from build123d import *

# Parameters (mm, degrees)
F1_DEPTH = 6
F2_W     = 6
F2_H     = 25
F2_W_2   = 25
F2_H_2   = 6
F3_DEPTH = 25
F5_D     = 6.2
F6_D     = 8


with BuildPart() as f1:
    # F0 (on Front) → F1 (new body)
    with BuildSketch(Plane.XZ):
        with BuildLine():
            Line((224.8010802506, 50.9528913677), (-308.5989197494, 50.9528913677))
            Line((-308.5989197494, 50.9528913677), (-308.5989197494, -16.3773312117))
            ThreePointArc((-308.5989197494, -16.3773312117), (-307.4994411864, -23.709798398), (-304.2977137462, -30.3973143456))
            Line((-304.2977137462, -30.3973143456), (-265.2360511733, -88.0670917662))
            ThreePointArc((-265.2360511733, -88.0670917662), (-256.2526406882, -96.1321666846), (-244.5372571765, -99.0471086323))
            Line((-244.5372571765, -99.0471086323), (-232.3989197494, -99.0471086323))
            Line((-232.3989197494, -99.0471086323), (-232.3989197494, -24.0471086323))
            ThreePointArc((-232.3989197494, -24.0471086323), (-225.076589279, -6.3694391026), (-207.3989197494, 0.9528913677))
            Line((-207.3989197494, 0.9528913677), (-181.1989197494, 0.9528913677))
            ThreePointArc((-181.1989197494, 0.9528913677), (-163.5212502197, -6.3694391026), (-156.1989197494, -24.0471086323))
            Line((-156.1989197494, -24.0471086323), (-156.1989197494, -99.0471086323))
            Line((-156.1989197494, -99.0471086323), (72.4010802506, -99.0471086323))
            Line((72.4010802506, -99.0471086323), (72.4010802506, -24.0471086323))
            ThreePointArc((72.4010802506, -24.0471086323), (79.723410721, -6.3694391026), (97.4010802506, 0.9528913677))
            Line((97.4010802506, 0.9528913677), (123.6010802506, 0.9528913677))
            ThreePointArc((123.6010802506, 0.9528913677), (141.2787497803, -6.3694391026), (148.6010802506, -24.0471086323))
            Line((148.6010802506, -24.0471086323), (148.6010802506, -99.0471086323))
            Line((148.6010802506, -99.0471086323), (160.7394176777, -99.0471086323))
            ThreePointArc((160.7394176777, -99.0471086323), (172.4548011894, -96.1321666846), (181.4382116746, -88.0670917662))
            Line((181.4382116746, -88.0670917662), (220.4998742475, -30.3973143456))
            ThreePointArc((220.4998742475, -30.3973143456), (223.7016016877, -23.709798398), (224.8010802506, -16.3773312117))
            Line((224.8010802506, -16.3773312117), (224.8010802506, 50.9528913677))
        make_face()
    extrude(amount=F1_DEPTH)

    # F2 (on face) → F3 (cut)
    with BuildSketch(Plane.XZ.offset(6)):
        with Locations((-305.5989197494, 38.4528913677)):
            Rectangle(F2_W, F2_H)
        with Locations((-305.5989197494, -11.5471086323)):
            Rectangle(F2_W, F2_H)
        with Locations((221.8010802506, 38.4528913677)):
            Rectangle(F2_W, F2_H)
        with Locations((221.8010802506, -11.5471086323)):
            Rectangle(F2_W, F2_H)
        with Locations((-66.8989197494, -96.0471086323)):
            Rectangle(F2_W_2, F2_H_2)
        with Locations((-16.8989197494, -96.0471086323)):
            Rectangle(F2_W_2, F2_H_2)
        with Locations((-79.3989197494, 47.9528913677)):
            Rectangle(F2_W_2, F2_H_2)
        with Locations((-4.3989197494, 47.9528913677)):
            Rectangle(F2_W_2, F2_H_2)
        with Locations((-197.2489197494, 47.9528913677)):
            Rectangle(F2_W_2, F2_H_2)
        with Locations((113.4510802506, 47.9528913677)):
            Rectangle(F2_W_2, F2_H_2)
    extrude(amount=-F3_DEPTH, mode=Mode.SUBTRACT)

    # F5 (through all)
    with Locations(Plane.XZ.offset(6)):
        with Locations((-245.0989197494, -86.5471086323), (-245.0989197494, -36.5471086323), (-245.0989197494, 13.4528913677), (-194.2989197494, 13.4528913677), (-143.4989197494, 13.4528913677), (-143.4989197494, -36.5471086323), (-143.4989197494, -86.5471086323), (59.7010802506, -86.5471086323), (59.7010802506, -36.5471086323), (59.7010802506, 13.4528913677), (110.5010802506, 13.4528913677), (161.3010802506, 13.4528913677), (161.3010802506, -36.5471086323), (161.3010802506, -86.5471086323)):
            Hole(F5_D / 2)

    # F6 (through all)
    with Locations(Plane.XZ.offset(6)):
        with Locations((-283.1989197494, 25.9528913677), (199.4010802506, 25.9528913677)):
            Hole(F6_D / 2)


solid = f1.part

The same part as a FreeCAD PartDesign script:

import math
import FreeCAD as App
import Part
import Sketcher

V = App.Vector


def add_polygon(sketch, points):
    """Adds a closed chain of lines whose ends are joined by coincident constraints."""
    first, n = sketch.GeometryCount, len(points)
    for a, b in zip(points, points[1:] + points[:1]):
        sketch.addGeometry(Part.LineSegment(App.Vector(*a, 0), App.Vector(*b, 0)), False)
    for i in range(n):
        sketch.addConstraint(Sketcher.Constraint("Coincident", first + i, 2, first + (i + 1) % n, 1))

doc = App.newDocument("Part")
body = doc.addObject("PartDesign::Body", "Body")

sketch1 = body.newObject("Sketcher::SketchObject", "Sketch")
sketch1.AttachmentSupport = (doc.getObject("XZ_Plane"), [""])
sketch1.MapMode = "FlatFace"
sketch1.addGeometry(Part.LineSegment(V(224.80108, 50.952891, 0), V(-308.59892, 50.952891, 0)), False)
sketch1.addGeometry(Part.LineSegment(V(-308.59892, 50.952891, 0), V(-308.59892, -16.377331, 0)), False)
sketch1.addGeometry(Part.ArcOfCircle(Part.Circle(V(-283.59892, -16.377331, 0), V(0, 0, 1), 25), math.radians(180), math.radians(214.111094)), False)
sketch1.addGeometry(Part.LineSegment(V(-304.297714, -30.397314, 0), V(-265.236051, -88.067092, 0)), False)
sketch1.addGeometry(Part.ArcOfCircle(Part.Circle(V(-244.537257, -74.047109, 0), V(0, 0, 1), 25), math.radians(-145.888906), math.radians(-90)), False)
sketch1.addGeometry(Part.LineSegment(V(-244.537257, -99.047109, 0), V(-232.39892, -99.047109, 0)), False)
sketch1.addGeometry(Part.LineSegment(V(-232.39892, -99.047109, 0), V(-232.39892, -24.047109, 0)), False)
sketch1.addGeometry(Part.ArcOfCircle(Part.Circle(V(-207.39892, -24.047109, 0), V(0, 0, 1), 25), math.radians(90), math.radians(180)), False)
sketch1.addGeometry(Part.LineSegment(V(-207.39892, 0.952891, 0), V(-181.19892, 0.952891, 0)), False)
sketch1.addGeometry(Part.ArcOfCircle(Part.Circle(V(-181.19892, -24.047109, 0), V(0, 0, 1), 25), math.radians(0), math.radians(90)), False)
sketch1.addGeometry(Part.LineSegment(V(-156.19892, -24.047109, 0), V(-156.19892, -99.047109, 0)), False)
sketch1.addGeometry(Part.LineSegment(V(-156.19892, -99.047109, 0), V(72.40108, -99.047109, 0)), False)
sketch1.addGeometry(Part.LineSegment(V(72.40108, -99.047109, 0), V(72.40108, -24.047109, 0)), False)
sketch1.addGeometry(Part.ArcOfCircle(Part.Circle(V(97.40108, -24.047109, 0), V(0, 0, 1), 25), math.radians(90), math.radians(180)), False)
sketch1.addGeometry(Part.LineSegment(V(97.40108, 0.952891, 0), V(123.60108, 0.952891, 0)), False)
sketch1.addGeometry(Part.ArcOfCircle(Part.Circle(V(123.60108, -24.047109, 0), V(0, 0, 1), 25), math.radians(0), math.radians(90)), False)
sketch1.addGeometry(Part.LineSegment(V(148.60108, -24.047109, 0), V(148.60108, -99.047109, 0)), False)
sketch1.addGeometry(Part.LineSegment(V(148.60108, -99.047109, 0), V(160.739418, -99.047109, 0)), False)
sketch1.addGeometry(Part.ArcOfCircle(Part.Circle(V(160.739418, -74.047109, 0), V(0, 0, 1), 25), math.radians(-90), math.radians(-34.111094)), False)
sketch1.addGeometry(Part.LineSegment(V(181.438212, -88.067092, 0), V(220.499874, -30.397314, 0)), False)
sketch1.addGeometry(Part.ArcOfCircle(Part.Circle(V(199.80108, -16.377331, 0), V(0, 0, 1), 25), math.radians(-34.111094), math.radians(0)), False)
sketch1.addGeometry(Part.LineSegment(V(224.80108, -16.377331, 0), V(224.80108, 50.952891, 0)), False)
sketch1.addConstraint(Sketcher.Constraint("Coincident", 0, 2, 1, 1))
sketch1.addConstraint(Sketcher.Constraint("Tangent", 1, 2, 2, 1))
sketch1.addConstraint(Sketcher.Constraint("Tangent", 2, 2, 3, 1))
sketch1.addConstraint(Sketcher.Constraint("Tangent", 3, 2, 4, 1))
sketch1.addConstraint(Sketcher.Constraint("Tangent", 4, 2, 5, 1))
sketch1.addConstraint(Sketcher.Constraint("Coincident", 5, 2, 6, 1))
sketch1.addConstraint(Sketcher.Constraint("Tangent", 6, 2, 7, 2))
sketch1.addConstraint(Sketcher.Constraint("Tangent", 7, 1, 8, 1))
sketch1.addConstraint(Sketcher.Constraint("Tangent", 8, 2, 9, 2))
sketch1.addConstraint(Sketcher.Constraint("Tangent", 9, 1, 10, 1))
sketch1.addConstraint(Sketcher.Constraint("Coincident", 10, 2, 11, 1))
sketch1.addConstraint(Sketcher.Constraint("Coincident", 11, 2, 12, 1))
sketch1.addConstraint(Sketcher.Constraint("Tangent", 12, 2, 13, 2))
sketch1.addConstraint(Sketcher.Constraint("Tangent", 13, 1, 14, 1))
sketch1.addConstraint(Sketcher.Constraint("Tangent", 14, 2, 15, 2))
sketch1.addConstraint(Sketcher.Constraint("Tangent", 15, 1, 16, 1))
sketch1.addConstraint(Sketcher.Constraint("Coincident", 16, 2, 17, 1))
sketch1.addConstraint(Sketcher.Constraint("Tangent", 17, 2, 18, 1))
sketch1.addConstraint(Sketcher.Constraint("Tangent", 18, 2, 19, 1))
sketch1.addConstraint(Sketcher.Constraint("Tangent", 19, 2, 20, 1))
sketch1.addConstraint(Sketcher.Constraint("Tangent", 20, 2, 21, 1))
sketch1.addConstraint(Sketcher.Constraint("Coincident", 21, 2, 0, 1))
sketch1.addConstraint(Sketcher.Constraint("Horizontal", 0))
sketch1.addConstraint(Sketcher.Constraint("Vertical", 1))
sketch1.addConstraint(Sketcher.Constraint("Horizontal", 5))
sketch1.addConstraint(Sketcher.Constraint("Vertical", 6))
sketch1.addConstraint(Sketcher.Constraint("Horizontal", 8))
sketch1.addConstraint(Sketcher.Constraint("Vertical", 10))
sketch1.addConstraint(Sketcher.Constraint("Horizontal", 11))
sketch1.addConstraint(Sketcher.Constraint("Vertical", 12))
sketch1.addConstraint(Sketcher.Constraint("Horizontal", 14))
sketch1.addConstraint(Sketcher.Constraint("Vertical", 16))
sketch1.addConstraint(Sketcher.Constraint("Horizontal", 17))
sketch1.addConstraint(Sketcher.Constraint("Vertical", 21))
sketch1.addConstraint(Sketcher.Constraint("Equal", 2, 4))
sketch1.addConstraint(Sketcher.Constraint("Equal", 4, 7))
sketch1.addConstraint(Sketcher.Constraint("Equal", 7, 9))
sketch1.addConstraint(Sketcher.Constraint("Equal", 9, 13))
sketch1.addConstraint(Sketcher.Constraint("Equal", 13, 15))
sketch1.addConstraint(Sketcher.Constraint("Equal", 15, 18))
sketch1.addConstraint(Sketcher.Constraint("Equal", 18, 20))
sketch1.addConstraint(Sketcher.Constraint("Horizontal", 9, 3, 13, 3))
sketch1.addConstraint(Sketcher.Constraint("Horizontal", 4, 3, 18, 3))
sketch1.addConstraint(Sketcher.Constraint("Horizontal", 2, 3, 20, 3))
sketch1.addConstraint(Sketcher.Constraint("Horizontal", 5, 2, 10, 2))
sketch1.addConstraint(Sketcher.Constraint("Horizontal", 3, 2, 18, 2))
sketch1.addConstraint(Sketcher.Constraint("Equal", 8, 14))
sketch1.addConstraint(Sketcher.Constraint("Equal", 5, 17))
sketch1.addConstraint(Sketcher.Constraint("Radius", 2, 25.0))
sketch1.addConstraint(Sketcher.Constraint("DistanceY", 6, 1, 6, 2, 75.0))
sketch1.addConstraint(Sketcher.Constraint("DistanceX", 0, 2, 0, 1, 533.4))
sketch1.addConstraint(Sketcher.Constraint("DistanceX", 8, 1, 8, 2, 26.2))
sketch1.addConstraint(Sketcher.Constraint("DistanceX", 11, 1, 11, 2, 228.6))
sketch1.addConstraint(Sketcher.Constraint("DistanceY", 7, 3, 0, 2, 75.0))
sketch1.addConstraint(Sketcher.Constraint("DistanceX", 5, 1, 5, 2, 12.138337))
sketch1.addConstraint(Sketcher.Constraint("DistanceY", 1, 2, 1, 1, 67.330223))
sketch1.addConstraint(Sketcher.Constraint("DistanceX", 2, 3, -1, 1, 283.59892))
sketch1.addConstraint(Sketcher.Constraint("DistanceY", 2, 3, -1, 1, 16.377331))
pad1 = body.newObject("PartDesign::Pad", "Pad")
pad1.Profile = sketch1
pad1.Length = 6

sketch2 = body.newObject("Sketcher::SketchObject", "Sketch001")
sketch2.AttachmentSupport = (doc.getObject("XZ_Plane"), [""])
sketch2.MapMode = "FlatFace"
sketch2.AttachmentOffset = App.Placement(V(0, 0, 6), App.Rotation())
add_polygon(sketch2, [(-308.59892, 50.952891), (-308.59892, 25.952891), (-302.59892, 25.952891), (-302.59892, 50.952891)])
add_polygon(sketch2, [(-308.59892, 0.952891), (-308.59892, -24.047109), (-302.59892, -24.047109), (-302.59892, 0.952891)])
add_polygon(sketch2, [(218.80108, 50.952891), (218.80108, 25.952891), (224.80108, 25.952891), (224.80108, 50.952891)])
add_polygon(sketch2, [(218.80108, 0.952891), (218.80108, -24.047109), (224.80108, -24.047109), (224.80108, 0.952891)])
add_polygon(sketch2, [(-79.39892, -93.047109), (-79.39892, -99.047109), (-54.39892, -99.047109), (-54.39892, -93.047109)])
add_polygon(sketch2, [(-29.39892, -93.047109), (-29.39892, -99.047109), (-4.39892, -99.047109), (-4.39892, -93.047109)])
add_polygon(sketch2, [(-91.89892, 50.952891), (-91.89892, 44.952891), (-66.89892, 44.952891), (-66.89892, 50.952891)])
add_polygon(sketch2, [(-16.89892, 50.952891), (-16.89892, 44.952891), (8.10108, 44.952891), (8.10108, 50.952891)])
add_polygon(sketch2, [(-209.74892, 50.952891), (-209.74892, 44.952891), (-184.74892, 44.952891), (-184.74892, 50.952891)])
add_polygon(sketch2, [(100.95108, 50.952891), (100.95108, 44.952891), (125.95108, 44.952891), (125.95108, 50.952891)])
sketch2.addConstraint(Sketcher.Constraint("Vertical", 0))
sketch2.addConstraint(Sketcher.Constraint("Horizontal", 1))
sketch2.addConstraint(Sketcher.Constraint("Vertical", 2))
sketch2.addConstraint(Sketcher.Constraint("Horizontal", 3))
sketch2.addConstraint(Sketcher.Constraint("Vertical", 4))
sketch2.addConstraint(Sketcher.Constraint("Horizontal", 5))
sketch2.addConstraint(Sketcher.Constraint("Vertical", 6))
sketch2.addConstraint(Sketcher.Constraint("Horizontal", 7))
sketch2.addConstraint(Sketcher.Constraint("Vertical", 8))
sketch2.addConstraint(Sketcher.Constraint("Horizontal", 9))
sketch2.addConstraint(Sketcher.Constraint("Vertical", 10))
sketch2.addConstraint(Sketcher.Constraint("Horizontal", 11))
sketch2.addConstraint(Sketcher.Constraint("Vertical", 12))
sketch2.addConstraint(Sketcher.Constraint("Horizontal", 13))
sketch2.addConstraint(Sketcher.Constraint("Vertical", 14))
sketch2.addConstraint(Sketcher.Constraint("Horizontal", 15))
sketch2.addConstraint(Sketcher.Constraint("Vertical", 16))
sketch2.addConstraint(Sketcher.Constraint("Horizontal", 17))
sketch2.addConstraint(Sketcher.Constraint("Vertical", 18))
sketch2.addConstraint(Sketcher.Constraint("Horizontal", 19))
sketch2.addConstraint(Sketcher.Constraint("Vertical", 20))
sketch2.addConstraint(Sketcher.Constraint("Horizontal", 21))
sketch2.addConstraint(Sketcher.Constraint("Vertical", 22))
sketch2.addConstraint(Sketcher.Constraint("Horizontal", 23))
sketch2.addConstraint(Sketcher.Constraint("Vertical", 24))
sketch2.addConstraint(Sketcher.Constraint("Horizontal", 25))
sketch2.addConstraint(Sketcher.Constraint("Vertical", 26))
sketch2.addConstraint(Sketcher.Constraint("Horizontal", 27))
sketch2.addConstraint(Sketcher.Constraint("Vertical", 28))
sketch2.addConstraint(Sketcher.Constraint("Horizontal", 29))
sketch2.addConstraint(Sketcher.Constraint("Vertical", 30))
sketch2.addConstraint(Sketcher.Constraint("Horizontal", 31))
sketch2.addConstraint(Sketcher.Constraint("Vertical", 32))
sketch2.addConstraint(Sketcher.Constraint("Horizontal", 33))
sketch2.addConstraint(Sketcher.Constraint("Vertical", 34))
sketch2.addConstraint(Sketcher.Constraint("Horizontal", 35))
sketch2.addConstraint(Sketcher.Constraint("Vertical", 36))
sketch2.addConstraint(Sketcher.Constraint("Horizontal", 37))
sketch2.addConstraint(Sketcher.Constraint("Vertical", 38))
sketch2.addConstraint(Sketcher.Constraint("Horizontal", 39))
sketch2.addConstraint(Sketcher.Constraint("Horizontal", 1, 2, 8, 2))
sketch2.addConstraint(Sketcher.Constraint("Horizontal", 3, 2, 10, 2))
sketch2.addConstraint(Sketcher.Constraint("Horizontal", 5, 2, 12, 2))
sketch2.addConstraint(Sketcher.Constraint("Horizontal", 7, 2, 14, 2))
sketch2.addConstraint(Sketcher.Constraint("Horizontal", 17, 2, 20, 2))
sketch2.addConstraint(Sketcher.Constraint("Horizontal", 19, 2, 22, 2))
sketch2.addConstraint(Sketcher.Constraint("Horizontal", 11, 2, 26, 2))
sketch2.addConstraint(Sketcher.Constraint("Horizontal", 25, 2, 28, 2))
sketch2.addConstraint(Sketcher.Constraint("Horizontal", 27, 2, 30, 2))
sketch2.addConstraint(Sketcher.Constraint("Horizontal", 29, 2, 32, 2))
sketch2.addConstraint(Sketcher.Constraint("Horizontal", 31, 2, 34, 2))
sketch2.addConstraint(Sketcher.Constraint("Horizontal", 33, 2, 36, 2))
sketch2.addConstraint(Sketcher.Constraint("Horizontal", 35, 2, 38, 2))
sketch2.addConstraint(Sketcher.Constraint("Vertical", 3, 2, 4, 2))
sketch2.addConstraint(Sketcher.Constraint("Vertical", 2, 2, 5, 2))
sketch2.addConstraint(Sketcher.Constraint("Vertical", 11, 2, 12, 2))
sketch2.addConstraint(Sketcher.Constraint("Vertical", 10, 2, 13, 2))
sketch2.addConstraint(Sketcher.Constraint("Equal", 7, 9))
sketch2.addConstraint(Sketcher.Constraint("Equal", 19, 21))
sketch2.addConstraint(Sketcher.Constraint("Equal", 23, 25))
sketch2.addConstraint(Sketcher.Constraint("Equal", 27, 29))
sketch2.addConstraint(Sketcher.Constraint("Equal", 31, 33))
sketch2.addConstraint(Sketcher.Constraint("Equal", 35, 37))
sketch2.addConstraint(Sketcher.Constraint("Equal", 39, 0))
sketch2.addConstraint(Sketcher.Constraint("Equal", 2, 4))
sketch2.addConstraint(Sketcher.Constraint("Equal", 15, 16))
sketch2.addConstraint(Sketcher.Constraint("Equal", 22, 24))
sketch2.addConstraint(Sketcher.Constraint("DistanceX", 1, 1, 1, 2, 6.0))
sketch2.addConstraint(Sketcher.Constraint("DistanceX", 17, 1, 17, 2, 25.0))
sketch2.addConstraint(Sketcher.Constraint("DistanceY", 4, 2, 0, 2, 50.0))
sketch2.addConstraint(Sketcher.Constraint("DistanceY", 16, 2, 5, 2, 75.0))
sketch2.addConstraint(Sketcher.Constraint("DistanceX", 17, 2, 20, 2, 25.0))
sketch2.addConstraint(Sketcher.Constraint("DistanceX", 25, 2, 28, 2, 50.0))
sketch2.addConstraint(Sketcher.Constraint("DistanceX", 1, 2, 8, 2, 521.4))
sketch2.addConstraint(Sketcher.Constraint("DistanceX", 5, 2, 16, 2, 223.2))
sketch2.addConstraint(Sketcher.Constraint("DistanceX", 24, 2, 19, 2, 12.5))
sketch2.addConstraint(Sketcher.Constraint("DistanceX", 2, 2, 32, 2, 92.85))
sketch2.addConstraint(Sketcher.Constraint("DistanceX", 29, 2, 36, 2, 92.85))
sketch2.addConstraint(Sketcher.Constraint("DistanceX", 0, 2, -1, 1, 308.59892))
sketch2.addConstraint(Sketcher.Constraint("DistanceY", -1, 1, 0, 2, 25.952891))
pocket1 = body.newObject("PartDesign::Pocket", "Pocket")
pocket1.Profile = sketch2
pocket1.Length = 25

sketch3 = body.newObject("Sketcher::SketchObject", "Sketch002")
sketch3.AttachmentSupport = (doc.getObject("XZ_Plane"), [""])
sketch3.MapMode = "FlatFace"
sketch3.AttachmentOffset = App.Placement(V(0, 0, 6), App.Rotation())
sketch3.addGeometry(Part.Circle(V(-245.09892, -86.547109, 0), V(0, 0, 1), 3.1), False)
sketch3.addGeometry(Part.Circle(V(-245.09892, -36.547109, 0), V(0, 0, 1), 3.1), False)
sketch3.addGeometry(Part.Circle(V(-245.09892, 13.452891, 0), V(0, 0, 1), 3.1), False)
sketch3.addGeometry(Part.Circle(V(-194.29892, 13.452891, 0), V(0, 0, 1), 3.1), False)
sketch3.addGeometry(Part.Circle(V(-143.49892, 13.452891, 0), V(0, 0, 1), 3.1), False)
sketch3.addGeometry(Part.Circle(V(-143.49892, -36.547109, 0), V(0, 0, 1), 3.1), False)
sketch3.addGeometry(Part.Circle(V(-143.49892, -86.547109, 0), V(0, 0, 1), 3.1), False)
sketch3.addGeometry(Part.Circle(V(59.70108, -86.547109, 0), V(0, 0, 1), 3.1), False)
sketch3.addGeometry(Part.Circle(V(59.70108, -36.547109, 0), V(0, 0, 1), 3.1), False)
sketch3.addGeometry(Part.Circle(V(59.70108, 13.452891, 0), V(0, 0, 1), 3.1), False)
sketch3.addGeometry(Part.Circle(V(110.50108, 13.452891, 0), V(0, 0, 1), 3.1), False)
sketch3.addGeometry(Part.Circle(V(161.30108, 13.452891, 0), V(0, 0, 1), 3.1), False)
sketch3.addGeometry(Part.Circle(V(161.30108, -36.547109, 0), V(0, 0, 1), 3.1), False)
sketch3.addGeometry(Part.Circle(V(161.30108, -86.547109, 0), V(0, 0, 1), 3.1), False)
sketch3.addConstraint(Sketcher.Constraint("Equal", 0, 1))
sketch3.addConstraint(Sketcher.Constraint("Equal", 1, 2))
sketch3.addConstraint(Sketcher.Constraint("Equal", 2, 3))
sketch3.addConstraint(Sketcher.Constraint("Equal", 3, 4))
sketch3.addConstraint(Sketcher.Constraint("Equal", 4, 5))
sketch3.addConstraint(Sketcher.Constraint("Equal", 5, 6))
sketch3.addConstraint(Sketcher.Constraint("Equal", 6, 7))
sketch3.addConstraint(Sketcher.Constraint("Equal", 7, 8))
sketch3.addConstraint(Sketcher.Constraint("Equal", 8, 9))
sketch3.addConstraint(Sketcher.Constraint("Equal", 9, 10))
sketch3.addConstraint(Sketcher.Constraint("Equal", 10, 11))
sketch3.addConstraint(Sketcher.Constraint("Equal", 11, 12))
sketch3.addConstraint(Sketcher.Constraint("Equal", 12, 13))
sketch3.addConstraint(Sketcher.Constraint("Horizontal", 2, 3, 3, 3))
sketch3.addConstraint(Sketcher.Constraint("Horizontal", 3, 3, 4, 3))
sketch3.addConstraint(Sketcher.Constraint("Horizontal", 1, 3, 5, 3))
sketch3.addConstraint(Sketcher.Constraint("Horizontal", 0, 3, 6, 3))
sketch3.addConstraint(Sketcher.Constraint("Horizontal", 6, 3, 7, 3))
sketch3.addConstraint(Sketcher.Constraint("Horizontal", 5, 3, 8, 3))
sketch3.addConstraint(Sketcher.Constraint("Horizontal", 4, 3, 9, 3))
sketch3.addConstraint(Sketcher.Constraint("Horizontal", 9, 3, 10, 3))
sketch3.addConstraint(Sketcher.Constraint("Horizontal", 10, 3, 11, 3))
sketch3.addConstraint(Sketcher.Constraint("Horizontal", 8, 3, 12, 3))
sketch3.addConstraint(Sketcher.Constraint("Horizontal", 7, 3, 13, 3))
sketch3.addConstraint(Sketcher.Constraint("Vertical", 0, 3, 1, 3))
sketch3.addConstraint(Sketcher.Constraint("Vertical", 1, 3, 2, 3))
sketch3.addConstraint(Sketcher.Constraint("Vertical", 4, 3, 5, 3))
sketch3.addConstraint(Sketcher.Constraint("Vertical", 5, 3, 6, 3))
sketch3.addConstraint(Sketcher.Constraint("Vertical", 7, 3, 8, 3))
sketch3.addConstraint(Sketcher.Constraint("Vertical", 8, 3, 9, 3))
sketch3.addConstraint(Sketcher.Constraint("Vertical", 11, 3, 12, 3))
sketch3.addConstraint(Sketcher.Constraint("Vertical", 12, 3, 13, 3))
sketch3.addConstraint(Sketcher.Constraint("Diameter", 0, 6.2))
sketch3.addConstraint(Sketcher.Constraint("DistanceY", 0, 3, 1, 3, 50.0))
sketch3.addConstraint(Sketcher.Constraint("DistanceY", 1, 3, 2, 3, 50.0))
sketch3.addConstraint(Sketcher.Constraint("DistanceX", 3, 3, 7, 3, 254.0))
sketch3.addConstraint(Sketcher.Constraint("DistanceX", 4, 3, 10, 3, 254.0))
sketch3.addConstraint(Sketcher.Constraint("DistanceX", 2, 3, 3, 3, 50.8))
sketch3.addConstraint(Sketcher.Constraint("DistanceX", 3, 3, 4, 3, 50.8))
sketch3.addConstraint(Sketcher.Constraint("DistanceX", 10, 3, 11, 3, 50.8))
sketch3.addConstraint(Sketcher.Constraint("DistanceX", 0, 3, -1, 1, 245.09892))
sketch3.addConstraint(Sketcher.Constraint("DistanceY", 0, 3, -1, 1, 86.547109))
doc.recompute()
hole = body.newObject("PartDesign::Hole", "Hole")
hole.Profile = sketch3
hole.ThreadType = "None"
hole.Diameter = 6.2
hole.DepthType = "ThroughAll"

sketch4 = body.newObject("Sketcher::SketchObject", "Sketch003")
sketch4.AttachmentSupport = (doc.getObject("XZ_Plane"), [""])
sketch4.MapMode = "FlatFace"
sketch4.AttachmentOffset = App.Placement(V(0, 0, 6), App.Rotation())
sketch4.addGeometry(Part.Circle(V(-283.19892, 25.952891, 0), V(0, 0, 1), 4), False)
sketch4.addGeometry(Part.Circle(V(199.40108, 25.952891, 0), V(0, 0, 1), 4), False)
sketch4.addConstraint(Sketcher.Constraint("Equal", 0, 1))
sketch4.addConstraint(Sketcher.Constraint("Horizontal", 0, 3, 1, 3))
sketch4.addConstraint(Sketcher.Constraint("Diameter", 0, 8.0))
sketch4.addConstraint(Sketcher.Constraint("DistanceX", 0, 3, 1, 3, 482.6))
sketch4.addConstraint(Sketcher.Constraint("DistanceX", 0, 3, -1, 1, 283.19892))
sketch4.addConstraint(Sketcher.Constraint("DistanceY", -1, 1, 0, 3, 25.952891))
doc.recompute()
hole2 = body.newObject("PartDesign::Hole", "Hole001")
hole2.Profile = sketch4
hole2.ThreadType = "None"
hole2.Diameter = 8
hole2.DepthType = "ThroughAll"

doc.recompute()
